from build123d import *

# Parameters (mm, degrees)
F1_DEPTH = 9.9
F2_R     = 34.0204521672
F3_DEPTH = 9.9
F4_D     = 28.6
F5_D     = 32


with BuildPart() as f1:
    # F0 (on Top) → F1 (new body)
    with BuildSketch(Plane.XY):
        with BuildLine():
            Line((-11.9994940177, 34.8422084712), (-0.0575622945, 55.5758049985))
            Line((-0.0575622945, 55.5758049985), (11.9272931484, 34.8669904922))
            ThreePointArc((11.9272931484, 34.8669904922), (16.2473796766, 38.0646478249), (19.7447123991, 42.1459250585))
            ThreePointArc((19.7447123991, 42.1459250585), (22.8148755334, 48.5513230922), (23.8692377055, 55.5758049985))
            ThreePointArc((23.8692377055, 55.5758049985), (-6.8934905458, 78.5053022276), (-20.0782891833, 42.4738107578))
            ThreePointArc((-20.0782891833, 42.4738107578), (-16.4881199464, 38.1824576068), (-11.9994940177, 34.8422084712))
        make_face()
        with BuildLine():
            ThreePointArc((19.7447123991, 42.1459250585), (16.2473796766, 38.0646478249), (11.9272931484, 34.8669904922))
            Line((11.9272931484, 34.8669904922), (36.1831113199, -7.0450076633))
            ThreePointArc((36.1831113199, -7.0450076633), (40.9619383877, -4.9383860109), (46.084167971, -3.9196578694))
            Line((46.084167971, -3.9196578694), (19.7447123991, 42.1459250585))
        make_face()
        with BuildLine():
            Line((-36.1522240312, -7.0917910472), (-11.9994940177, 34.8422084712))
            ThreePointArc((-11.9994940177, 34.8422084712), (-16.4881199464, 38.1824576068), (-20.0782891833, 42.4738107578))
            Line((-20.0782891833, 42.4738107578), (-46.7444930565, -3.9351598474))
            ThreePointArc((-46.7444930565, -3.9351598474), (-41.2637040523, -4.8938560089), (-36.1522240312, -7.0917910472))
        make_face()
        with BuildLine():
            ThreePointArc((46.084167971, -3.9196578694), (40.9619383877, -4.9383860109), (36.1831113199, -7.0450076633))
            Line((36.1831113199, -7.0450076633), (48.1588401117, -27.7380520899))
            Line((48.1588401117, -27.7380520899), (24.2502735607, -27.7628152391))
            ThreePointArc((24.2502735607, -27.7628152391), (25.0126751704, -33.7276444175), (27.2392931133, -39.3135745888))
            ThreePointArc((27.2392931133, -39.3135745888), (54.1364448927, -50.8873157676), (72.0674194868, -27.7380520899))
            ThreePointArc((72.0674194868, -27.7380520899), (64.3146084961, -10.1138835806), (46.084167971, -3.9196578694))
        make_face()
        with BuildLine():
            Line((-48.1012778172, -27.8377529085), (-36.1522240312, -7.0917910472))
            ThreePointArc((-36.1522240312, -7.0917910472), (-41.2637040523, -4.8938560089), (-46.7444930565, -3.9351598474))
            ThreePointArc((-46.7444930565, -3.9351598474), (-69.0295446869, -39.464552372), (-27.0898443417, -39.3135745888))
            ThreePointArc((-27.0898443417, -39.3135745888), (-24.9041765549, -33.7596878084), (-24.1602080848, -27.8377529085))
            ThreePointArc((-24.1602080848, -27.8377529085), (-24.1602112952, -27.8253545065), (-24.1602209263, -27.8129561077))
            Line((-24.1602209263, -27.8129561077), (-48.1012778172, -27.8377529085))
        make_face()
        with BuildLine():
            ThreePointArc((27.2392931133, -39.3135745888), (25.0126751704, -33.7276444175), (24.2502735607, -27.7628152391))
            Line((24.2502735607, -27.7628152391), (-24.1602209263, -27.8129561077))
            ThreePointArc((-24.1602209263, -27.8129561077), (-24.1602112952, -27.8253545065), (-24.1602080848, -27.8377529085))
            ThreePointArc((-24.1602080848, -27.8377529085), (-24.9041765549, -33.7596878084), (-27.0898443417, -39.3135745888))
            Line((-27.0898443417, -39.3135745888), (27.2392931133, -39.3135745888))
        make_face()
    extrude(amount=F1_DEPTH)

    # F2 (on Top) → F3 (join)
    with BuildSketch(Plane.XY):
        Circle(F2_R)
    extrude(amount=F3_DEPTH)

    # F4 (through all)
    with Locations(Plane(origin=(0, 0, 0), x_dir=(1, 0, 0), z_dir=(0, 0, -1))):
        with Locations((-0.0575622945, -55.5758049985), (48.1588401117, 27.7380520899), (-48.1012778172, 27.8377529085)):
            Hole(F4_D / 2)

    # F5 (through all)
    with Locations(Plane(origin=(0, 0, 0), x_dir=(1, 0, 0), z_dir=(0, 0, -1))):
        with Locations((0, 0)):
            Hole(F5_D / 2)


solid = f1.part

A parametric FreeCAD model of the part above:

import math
import FreeCAD as App
import Part
import Sketcher

doc = App.newDocument("Part")
body = doc.addObject("PartDesign::Body", "Body")

# Sketch on XY plane
sketch1 = doc.addObject("Sketcher::SketchObject", "Sketch")
body.addObject(sketch1)
sketch1.AttachmentSupport = (doc.XY_Plane, [""])
sketch1.MapMode = "FlatFace"
sketch1.addGeometry([
    Part.ArcOfCircle(Part.Circle(App.Vector(48, -28, 0), App.Vector(0, 0, 1), 24), math.radians(-151), math.radians(0)),  # 0
    Part.ArcOfCircle(Part.Circle(App.Vector(48, -28, 0), App.Vector(0, 0, 1), 24), math.radians(0), math.radians(95)),  # 1
    Part.LineSegment(App.Vector(46, -4, 0), App.Vector(20, 42, 0)),  # 2
    Part.ArcOfCircle(Part.Circle(App.Vector(0, 56, 0), App.Vector(0, 0, 1), 24), math.radians(-34), math.radians(0)),  # 3
    Part.ArcOfCircle(Part.Circle(App.Vector(0, 56, 0), App.Vector(0, 0, 1), 24), math.radians(0), math.radians(213)),  # 4
    Part.LineSegment(App.Vector(-20, 42, 0), App.Vector(-47, -4, 0)),  # 5
    Part.ArcOfCircle(Part.Circle(App.Vector(-48, -28, 0), App.Vector(0, 0, 1), 24), math.radians(87), math.radians(331)),  # 6
    Part.LineSegment(App.Vector(-27, -39, 0), App.Vector(27, -39, 0)),  # 7
    Part.LineSegment(App.Vector(-12, 35, 0), App.Vector(0, 56, 0)),  # 8
    Part.LineSegment(App.Vector(0, 56, 0), App.Vector(12, 35, 0)),  # 9
    Part.LineSegment(App.Vector(12, 35, 0), App.Vector(36, -7, 0)),  # 10
    Part.LineSegment(App.Vector(36, -7, 0), App.Vector(48, -28, 0)),  # 11
    Part.LineSegment(App.Vector(48, -28, 0), App.Vector(24, -28, 0)),  # 12
    Part.LineSegment(App.Vector(24, -28, 0), App.Vector(-48, -28, 0)),  # 13
    Part.LineSegment(App.Vector(-48, -28, 0), App.Vector(-12, 35, 0)),  # 14
], False)
sketch1.addConstraint([
    Sketcher.Constraint("Tangent", 0, 2, 1, 1),
    Sketcher.Constraint("Coincident", 1, 2, 2, 1),
    Sketcher.Constraint("Coincident", 2, 2, 3, 1),
    Sketcher.Constraint("Tangent", 3, 2, 4, 1),
    Sketcher.Constraint("Coincident", 4, 2, 5, 1),
    Sketcher.Constraint("Coincident", 5, 2, 6, 1),
    Sketcher.Constraint("Coincident", 6, 2, 7, 1),
    Sketcher.Constraint("Coincident", 7, 2, 0, 1),
    Sketcher.Constraint("Coincident", 8, 2, 9, 1),
    Sketcher.Constraint("Coincident", 9, 2, 10, 1),
    Sketcher.Constraint("Coincident", 10, 2, 11, 1),
    Sketcher.Constraint("Coincident", 11, 2, 12, 1),
    Sketcher.Constraint("Coincident", 12, 2, 13, 1),
    Sketcher.Constraint("Coincident", 13, 2, 14, 1),
    Sketcher.Constraint("Coincident", 14, 2, 8, 1),
    Sketcher.Constraint("Horizontal", 7),
    Sketcher.Constraint("Coincident", 8, 2, 3, 3),
    Sketcher.Constraint("Coincident", 11, 2, 0, 3),
    Sketcher.Constraint("Coincident", 13, 2, 6, 3),
    Sketcher.Constraint("Equal", 0, 1),
    Sketcher.Constraint("Equal", 3, 4),
    Sketcher.Constraint("Parallel", 9, 10),
    Sketcher.Constraint("Parallel", 10, 11),
    Sketcher.Constraint("Parallel", 12, 13),
    Sketcher.Constraint("Parallel", 8, 14),
    Sketcher.Constraint("Horizontal", 1, 3, 0, 2),
    Sketcher.Constraint("Horizontal", 4, 3, 3, 2),
    Sketcher.Constraint("Equal", 8, 9),
    Sketcher.Constraint("Equal", 11, 12),
    Sketcher.Constraint("Radius", 3, 23.9268),
    Sketcher.Constraint("Radius", 0, 23.908579),
    Sketcher.Constraint("Radius", 6, 23.94107),
    Sketcher.Constraint("DistanceX", 4, 2, 2, 2, 39.823002),
    Sketcher.Constraint("Distance", 8, 23.9268),
    Sketcher.Constraint("DistanceY", 6, 3, 0, 3, 0.099701),
    Sketcher.Constraint("Distance", 10, 48.42479),
    Sketcher.Constraint("Distance", 11, 23.908579),
    Sketcher.Constraint("Distance", 13, 72.35159),
    Sketcher.Constraint("Distance", 14, 72.33337),
    Sketcher.Constraint("DistanceX", 7, 1, 7, 2, 54.329137),
    Sketcher.Constraint("DistanceX", -1, 1, 0, 3, 48.15884),
    Sketcher.Constraint("DistanceX", 4, 2, -1, 1, 20.078289),
    Sketcher.Constraint("DistanceY", -1, 1, 4, 2, 42.473811),
    Sketcher.Constraint("DistanceY", 5, 2, -1, 1, 3.93516),
    Sketcher.Constraint("DistanceX", 1, 2, 0, 2, 25.983252),
])
pad1 = doc.addObject("PartDesign::Pad", "Pad")
body.addObject(pad1)
pad1.Profile = sketch1
pad1.Length = 9.9

# Sketch on XY plane
sketch2 = doc.addObject("Sketcher::SketchObject", "Sketch001")
body.addObject(sketch2)
sketch2.AttachmentSupport = (doc.XY_Plane, [""])
sketch2.MapMode = "FlatFace"
sketch2.addGeometry(Part.Circle(App.Vector(0, 0, 0), App.Vector(0, 0, 1), 34), False)
sketch2.addConstraint([
    Sketcher.Constraint("Coincident", 0, 3, -1, 1),
    Sketcher.Constraint("Diameter", 0, 68.040904),
])
pad2 = doc.addObject("PartDesign::Pad", "Pad001")
body.addObject(pad2)
pad2.Profile = sketch2
pad2.Length = 9.9

# Sketch on XY plane
sketch3 = doc.addObject("Sketcher::SketchObject", "Sketch002")
body.addObject(sketch3)
sketch3.AttachmentSupport = (doc.XY_Plane, [""])
sketch3.MapMode = "FlatFace"
sketch3.addGeometry([
    Part.Circle(App.Vector(0, 56, 0), App.Vector(0, 0, 1), 14),
    Part.Circle(App.Vector(48, -28, 0), App.Vector(0, 0, 1), 14),
    Part.Circle(App.Vector(-48, -28, 0), App.Vector(0, 0, 1), 14),
], False)
sketch3.addConstraint([
    Sketcher.Constraint("Equal", 0, 1),
    Sketcher.Constraint("Equal", 1, 2),
    Sketcher.Constraint("Diameter", 0, 28.6),
    Sketcher.Constraint("DistanceY", 2, 3, 1, 3, 0.099701),
    Sketcher.Constraint("DistanceX", -1, 1, 1, 3, 48.15884),
    Sketcher.Constraint("DistanceX", 0, 3, -1, 1, 0.057562),
    Sketcher.Constraint("DistanceY", -1, 1, 0, 3, 55.575805),
    Sketcher.Constraint("DistanceY", 1, 3, -1, 1, 27.738052),
    Sketcher.Constraint("DistanceX", 2, 3, -1, 1, 48.101278),
])
doc.recompute()
hole = doc.addObject("PartDesign::Hole", "Hole")
body.addObject(hole)
hole.Profile = sketch3
hole.ThreadType = "None"
hole.Diameter = 28.6
hole.DepthType = "ThroughAll"
hole.Reversed = True

# Sketch on XY plane
sketch4 = doc.addObject("Sketcher::SketchObject", "Sketch003")
body.addObject(sketch4)
sketch4.AttachmentSupport = (doc.XY_Plane, [""])
sketch4.MapMode = "FlatFace"
sketch4.addGeometry(Part.Circle(App.Vector(0, 0, 0), App.Vector(0, 0, 1), 16), False)
sketch4.addConstraint([
    Sketcher.Constraint("Coincident", 0, 3, -1, 1),
    Sketcher.Constraint("Diameter", 0, 32.0),
])
doc.recompute()
hole2 = doc.addObject("PartDesign::Hole", "Hole001")
body.addObject(hole2)
hole2.Profile = sketch4
hole2.ThreadType = "None"
hole2.Diameter = 32
hole2.DepthType = "ThroughAll"
hole2.Reversed = True

doc.recompute()
